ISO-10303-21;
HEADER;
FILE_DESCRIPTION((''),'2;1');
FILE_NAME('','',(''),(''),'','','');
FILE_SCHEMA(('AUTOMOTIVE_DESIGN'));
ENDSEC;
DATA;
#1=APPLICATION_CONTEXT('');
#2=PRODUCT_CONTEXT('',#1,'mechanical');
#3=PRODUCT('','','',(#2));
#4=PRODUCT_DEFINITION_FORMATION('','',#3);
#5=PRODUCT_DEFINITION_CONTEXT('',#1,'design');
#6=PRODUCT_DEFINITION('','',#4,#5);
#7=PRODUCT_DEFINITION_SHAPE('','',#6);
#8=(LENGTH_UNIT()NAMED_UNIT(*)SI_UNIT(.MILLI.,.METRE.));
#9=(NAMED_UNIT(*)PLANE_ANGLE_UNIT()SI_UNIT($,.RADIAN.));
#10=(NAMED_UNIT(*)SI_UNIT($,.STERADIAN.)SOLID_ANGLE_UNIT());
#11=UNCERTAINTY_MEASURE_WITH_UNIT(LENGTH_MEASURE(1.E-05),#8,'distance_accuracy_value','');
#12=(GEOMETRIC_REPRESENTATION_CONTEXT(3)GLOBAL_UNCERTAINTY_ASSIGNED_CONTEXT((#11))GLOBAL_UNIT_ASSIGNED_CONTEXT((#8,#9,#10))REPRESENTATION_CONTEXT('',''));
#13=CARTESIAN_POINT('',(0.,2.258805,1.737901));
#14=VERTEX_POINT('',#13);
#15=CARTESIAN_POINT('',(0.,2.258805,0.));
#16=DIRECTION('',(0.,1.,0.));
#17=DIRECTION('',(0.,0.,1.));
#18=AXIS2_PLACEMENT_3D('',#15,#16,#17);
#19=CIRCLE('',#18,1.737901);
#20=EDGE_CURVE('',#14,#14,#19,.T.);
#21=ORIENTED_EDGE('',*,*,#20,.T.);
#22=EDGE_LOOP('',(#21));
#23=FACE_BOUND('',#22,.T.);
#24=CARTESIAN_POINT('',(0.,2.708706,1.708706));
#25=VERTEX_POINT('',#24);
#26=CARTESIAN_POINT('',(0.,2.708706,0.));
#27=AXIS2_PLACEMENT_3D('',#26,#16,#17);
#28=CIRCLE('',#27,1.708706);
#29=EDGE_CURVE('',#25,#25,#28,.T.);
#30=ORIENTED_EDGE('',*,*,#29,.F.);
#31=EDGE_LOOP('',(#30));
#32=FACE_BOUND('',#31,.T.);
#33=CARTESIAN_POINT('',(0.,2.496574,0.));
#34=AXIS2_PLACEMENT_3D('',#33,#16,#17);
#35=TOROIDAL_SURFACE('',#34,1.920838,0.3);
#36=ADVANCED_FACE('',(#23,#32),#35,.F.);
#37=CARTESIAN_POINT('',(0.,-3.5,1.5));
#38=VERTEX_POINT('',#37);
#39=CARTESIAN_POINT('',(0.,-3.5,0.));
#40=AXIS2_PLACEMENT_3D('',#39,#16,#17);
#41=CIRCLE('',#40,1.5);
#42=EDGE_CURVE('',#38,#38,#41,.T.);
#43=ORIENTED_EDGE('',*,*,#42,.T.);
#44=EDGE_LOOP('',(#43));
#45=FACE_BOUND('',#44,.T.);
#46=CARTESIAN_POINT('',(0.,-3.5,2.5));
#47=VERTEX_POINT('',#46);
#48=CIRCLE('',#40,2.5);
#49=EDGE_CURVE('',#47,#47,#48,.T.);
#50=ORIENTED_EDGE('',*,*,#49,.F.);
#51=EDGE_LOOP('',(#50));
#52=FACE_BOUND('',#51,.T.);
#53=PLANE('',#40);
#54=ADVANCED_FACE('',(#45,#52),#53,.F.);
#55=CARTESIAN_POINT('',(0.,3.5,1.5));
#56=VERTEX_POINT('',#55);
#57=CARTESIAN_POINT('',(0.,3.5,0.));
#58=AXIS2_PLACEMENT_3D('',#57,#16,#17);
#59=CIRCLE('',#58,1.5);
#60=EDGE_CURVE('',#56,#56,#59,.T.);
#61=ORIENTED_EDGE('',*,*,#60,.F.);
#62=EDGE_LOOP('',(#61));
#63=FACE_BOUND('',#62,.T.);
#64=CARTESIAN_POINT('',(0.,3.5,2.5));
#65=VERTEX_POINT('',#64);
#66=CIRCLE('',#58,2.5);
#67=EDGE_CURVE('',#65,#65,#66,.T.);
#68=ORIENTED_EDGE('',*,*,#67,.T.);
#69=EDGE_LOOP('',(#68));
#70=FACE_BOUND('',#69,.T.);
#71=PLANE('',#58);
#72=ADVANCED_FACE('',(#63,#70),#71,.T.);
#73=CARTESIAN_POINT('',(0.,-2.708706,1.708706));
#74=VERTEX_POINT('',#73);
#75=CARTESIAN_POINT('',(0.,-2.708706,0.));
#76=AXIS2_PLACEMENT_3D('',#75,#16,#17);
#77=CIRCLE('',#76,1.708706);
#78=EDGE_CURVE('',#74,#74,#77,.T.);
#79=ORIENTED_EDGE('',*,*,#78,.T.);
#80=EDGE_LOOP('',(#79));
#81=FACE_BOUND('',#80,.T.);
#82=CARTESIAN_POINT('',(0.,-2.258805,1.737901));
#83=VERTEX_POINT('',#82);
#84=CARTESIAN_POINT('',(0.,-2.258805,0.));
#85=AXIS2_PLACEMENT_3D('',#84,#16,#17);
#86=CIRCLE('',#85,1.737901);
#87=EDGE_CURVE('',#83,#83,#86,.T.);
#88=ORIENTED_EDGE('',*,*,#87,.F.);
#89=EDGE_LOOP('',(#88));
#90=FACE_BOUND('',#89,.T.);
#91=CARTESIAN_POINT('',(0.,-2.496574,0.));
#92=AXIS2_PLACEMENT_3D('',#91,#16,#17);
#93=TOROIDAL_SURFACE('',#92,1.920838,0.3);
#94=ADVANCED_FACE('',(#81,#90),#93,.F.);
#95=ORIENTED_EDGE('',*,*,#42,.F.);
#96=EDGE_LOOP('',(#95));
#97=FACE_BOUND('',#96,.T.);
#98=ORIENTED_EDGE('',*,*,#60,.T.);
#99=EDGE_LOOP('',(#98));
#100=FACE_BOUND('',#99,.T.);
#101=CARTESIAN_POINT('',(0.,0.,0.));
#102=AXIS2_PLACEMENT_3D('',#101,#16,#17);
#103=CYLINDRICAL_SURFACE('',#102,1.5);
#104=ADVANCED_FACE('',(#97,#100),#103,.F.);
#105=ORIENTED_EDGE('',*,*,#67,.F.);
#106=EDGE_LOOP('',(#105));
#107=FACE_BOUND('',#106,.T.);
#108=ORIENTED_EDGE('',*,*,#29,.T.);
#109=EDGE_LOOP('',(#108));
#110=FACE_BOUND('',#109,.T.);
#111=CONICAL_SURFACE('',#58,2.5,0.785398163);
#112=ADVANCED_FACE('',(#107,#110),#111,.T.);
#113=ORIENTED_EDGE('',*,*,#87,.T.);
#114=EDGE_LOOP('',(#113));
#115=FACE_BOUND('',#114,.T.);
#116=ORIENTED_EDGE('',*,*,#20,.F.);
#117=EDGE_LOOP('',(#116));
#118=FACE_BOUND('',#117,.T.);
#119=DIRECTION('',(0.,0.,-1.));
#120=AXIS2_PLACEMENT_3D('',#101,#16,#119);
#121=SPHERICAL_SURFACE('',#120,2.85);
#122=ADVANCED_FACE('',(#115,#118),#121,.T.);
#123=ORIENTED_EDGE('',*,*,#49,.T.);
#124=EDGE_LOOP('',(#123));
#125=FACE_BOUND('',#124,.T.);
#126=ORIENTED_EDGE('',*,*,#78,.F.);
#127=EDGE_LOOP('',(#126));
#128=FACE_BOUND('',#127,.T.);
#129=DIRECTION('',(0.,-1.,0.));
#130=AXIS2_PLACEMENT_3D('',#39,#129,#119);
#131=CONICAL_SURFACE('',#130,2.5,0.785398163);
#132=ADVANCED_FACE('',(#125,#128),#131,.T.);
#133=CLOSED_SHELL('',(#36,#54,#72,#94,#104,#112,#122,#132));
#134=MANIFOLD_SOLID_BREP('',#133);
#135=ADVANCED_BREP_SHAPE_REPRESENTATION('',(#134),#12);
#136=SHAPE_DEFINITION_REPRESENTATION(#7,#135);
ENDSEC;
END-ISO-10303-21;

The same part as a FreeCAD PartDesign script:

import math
import FreeCAD as App
import Part
import Sketcher
from FreeCAD import Vector

doc = App.newDocument("Part")
params = doc.addObject("Spreadsheet::Sheet", "Params")
for row, (alias, value) in enumerate([
    ("sketch1_radius", "0.3 mm"),
    ("sketch1_width", "7 mm"),
    ("sketch1_height", "1 mm"),
    ("sketch1_radius2", "2.85 mm"),
    ("revolution_angle", "360 deg"),
], start=1):
    params.set(f"A{row}", alias)
    params.set(f"B{row}", "=" + value)
    params.setAlias(f"B{row}", alias)

body = doc.addObject("PartDesign::Body", "Body")

# Sketch on YZ plane
sketch1 = body.newObject("Sketcher::SketchObject", "Sketch")
sketch1.AttachmentSupport = (doc.getObject("YZ_Plane"), [""])
sketch1.MapMode = "FlatFace"
sketch1.addGeometry([
    Part.LineSegment(Vector(3.5, -2.5, 0), Vector(3.5, -1.5, 0)),  # 0
    Part.LineSegment(Vector(3.5, -1.5, 0), Vector(-3.5, -1.5, 0)),  # 1
    Part.LineSegment(Vector(-3.5, -1.5, 0), Vector(-3.5, -2.5, 0)),  # 2
    Part.LineSegment(Vector(-3.5, -2.5, 0), Vector(-2.71, -1.71, 0)),  # 3
    Part.ArcOfCircle(Part.Circle(Vector(-2.5, -1.92, 0), Vector(0, 0, 1), 0.3), math.radians(38), math.radians(135)),  # 4
    Part.ArcOfCircle(Part.Circle(Vector(0, 0, 0), Vector(0, 0, 1), 2.85), math.radians(-142), math.radians(-38)),  # 5
    Part.ArcOfCircle(Part.Circle(Vector(2.5, -1.92, 0), Vector(0, 0, 1), 0.3), math.radians(45), math.radians(142)),  # 6
    Part.LineSegment(Vector(2.71, -1.71, 0), Vector(3.5, -2.5, 0)),  # 7
], False)
sketch1.addConstraint([
    Sketcher.Constraint("Coincident", 0, 2, 1, 1),
    Sketcher.Constraint("Coincident", 1, 2, 2, 1),
    Sketcher.Constraint("Coincident", 2, 2, 3, 1),
    Sketcher.Constraint("Tangent", 3, 2, 4, 2),
    Sketcher.Constraint("Tangent", 4, 1, 5, 1),
    Sketcher.Constraint("Tangent", 5, 2, 6, 2),
    Sketcher.Constraint("Tangent", 6, 1, 7, 1),
    Sketcher.Constraint("Coincident", 7, 2, 0, 1),
    Sketcher.Constraint("Vertical", 0),
    Sketcher.Constraint("Horizontal", 1),
    Sketcher.Constraint("Vertical", 2),
    Sketcher.Constraint("Coincident", 5, 3, -1, 1),
    Sketcher.Constraint("Equal", 4, 6),
    Sketcher.Constraint("Symmetric", 3, 2, 6, 1, -2),
    Sketcher.Constraint("Perpendicular", 3, 7),
    Sketcher.Constraint("Horizontal", 2, 2, 7, 2),
    Sketcher.Constraint("Radius", 4, 0.3),
    Sketcher.Constraint("DistanceX", 1, 2, 1, 1, 7.0),
    Sketcher.Constraint("DistanceY", 0, 1, 0, 2, 1.0),
    Sketcher.Constraint("Radius", 5, 2.85),
    Sketcher.Constraint("DistanceY", 0, 2, -1, 1, 1.5),
])
sketch1.setExpression("Constraints[16]", "Params.sketch1_radius")
sketch1.setExpression("Constraints[17]", "Params.sketch1_width")
sketch1.setExpression("Constraints[18]", "Params.sketch1_height")
sketch1.setExpression("Constraints[19]", "Params.sketch1_radius2")
revolution = body.newObject("PartDesign::Revolution", "Revolution")
revolution.Profile = sketch1
revolution.ReferenceAxis = (sketch1, ["H_Axis"])
revolution.setExpression("Angle", "Params.revolution_angle")

doc.recompute()
